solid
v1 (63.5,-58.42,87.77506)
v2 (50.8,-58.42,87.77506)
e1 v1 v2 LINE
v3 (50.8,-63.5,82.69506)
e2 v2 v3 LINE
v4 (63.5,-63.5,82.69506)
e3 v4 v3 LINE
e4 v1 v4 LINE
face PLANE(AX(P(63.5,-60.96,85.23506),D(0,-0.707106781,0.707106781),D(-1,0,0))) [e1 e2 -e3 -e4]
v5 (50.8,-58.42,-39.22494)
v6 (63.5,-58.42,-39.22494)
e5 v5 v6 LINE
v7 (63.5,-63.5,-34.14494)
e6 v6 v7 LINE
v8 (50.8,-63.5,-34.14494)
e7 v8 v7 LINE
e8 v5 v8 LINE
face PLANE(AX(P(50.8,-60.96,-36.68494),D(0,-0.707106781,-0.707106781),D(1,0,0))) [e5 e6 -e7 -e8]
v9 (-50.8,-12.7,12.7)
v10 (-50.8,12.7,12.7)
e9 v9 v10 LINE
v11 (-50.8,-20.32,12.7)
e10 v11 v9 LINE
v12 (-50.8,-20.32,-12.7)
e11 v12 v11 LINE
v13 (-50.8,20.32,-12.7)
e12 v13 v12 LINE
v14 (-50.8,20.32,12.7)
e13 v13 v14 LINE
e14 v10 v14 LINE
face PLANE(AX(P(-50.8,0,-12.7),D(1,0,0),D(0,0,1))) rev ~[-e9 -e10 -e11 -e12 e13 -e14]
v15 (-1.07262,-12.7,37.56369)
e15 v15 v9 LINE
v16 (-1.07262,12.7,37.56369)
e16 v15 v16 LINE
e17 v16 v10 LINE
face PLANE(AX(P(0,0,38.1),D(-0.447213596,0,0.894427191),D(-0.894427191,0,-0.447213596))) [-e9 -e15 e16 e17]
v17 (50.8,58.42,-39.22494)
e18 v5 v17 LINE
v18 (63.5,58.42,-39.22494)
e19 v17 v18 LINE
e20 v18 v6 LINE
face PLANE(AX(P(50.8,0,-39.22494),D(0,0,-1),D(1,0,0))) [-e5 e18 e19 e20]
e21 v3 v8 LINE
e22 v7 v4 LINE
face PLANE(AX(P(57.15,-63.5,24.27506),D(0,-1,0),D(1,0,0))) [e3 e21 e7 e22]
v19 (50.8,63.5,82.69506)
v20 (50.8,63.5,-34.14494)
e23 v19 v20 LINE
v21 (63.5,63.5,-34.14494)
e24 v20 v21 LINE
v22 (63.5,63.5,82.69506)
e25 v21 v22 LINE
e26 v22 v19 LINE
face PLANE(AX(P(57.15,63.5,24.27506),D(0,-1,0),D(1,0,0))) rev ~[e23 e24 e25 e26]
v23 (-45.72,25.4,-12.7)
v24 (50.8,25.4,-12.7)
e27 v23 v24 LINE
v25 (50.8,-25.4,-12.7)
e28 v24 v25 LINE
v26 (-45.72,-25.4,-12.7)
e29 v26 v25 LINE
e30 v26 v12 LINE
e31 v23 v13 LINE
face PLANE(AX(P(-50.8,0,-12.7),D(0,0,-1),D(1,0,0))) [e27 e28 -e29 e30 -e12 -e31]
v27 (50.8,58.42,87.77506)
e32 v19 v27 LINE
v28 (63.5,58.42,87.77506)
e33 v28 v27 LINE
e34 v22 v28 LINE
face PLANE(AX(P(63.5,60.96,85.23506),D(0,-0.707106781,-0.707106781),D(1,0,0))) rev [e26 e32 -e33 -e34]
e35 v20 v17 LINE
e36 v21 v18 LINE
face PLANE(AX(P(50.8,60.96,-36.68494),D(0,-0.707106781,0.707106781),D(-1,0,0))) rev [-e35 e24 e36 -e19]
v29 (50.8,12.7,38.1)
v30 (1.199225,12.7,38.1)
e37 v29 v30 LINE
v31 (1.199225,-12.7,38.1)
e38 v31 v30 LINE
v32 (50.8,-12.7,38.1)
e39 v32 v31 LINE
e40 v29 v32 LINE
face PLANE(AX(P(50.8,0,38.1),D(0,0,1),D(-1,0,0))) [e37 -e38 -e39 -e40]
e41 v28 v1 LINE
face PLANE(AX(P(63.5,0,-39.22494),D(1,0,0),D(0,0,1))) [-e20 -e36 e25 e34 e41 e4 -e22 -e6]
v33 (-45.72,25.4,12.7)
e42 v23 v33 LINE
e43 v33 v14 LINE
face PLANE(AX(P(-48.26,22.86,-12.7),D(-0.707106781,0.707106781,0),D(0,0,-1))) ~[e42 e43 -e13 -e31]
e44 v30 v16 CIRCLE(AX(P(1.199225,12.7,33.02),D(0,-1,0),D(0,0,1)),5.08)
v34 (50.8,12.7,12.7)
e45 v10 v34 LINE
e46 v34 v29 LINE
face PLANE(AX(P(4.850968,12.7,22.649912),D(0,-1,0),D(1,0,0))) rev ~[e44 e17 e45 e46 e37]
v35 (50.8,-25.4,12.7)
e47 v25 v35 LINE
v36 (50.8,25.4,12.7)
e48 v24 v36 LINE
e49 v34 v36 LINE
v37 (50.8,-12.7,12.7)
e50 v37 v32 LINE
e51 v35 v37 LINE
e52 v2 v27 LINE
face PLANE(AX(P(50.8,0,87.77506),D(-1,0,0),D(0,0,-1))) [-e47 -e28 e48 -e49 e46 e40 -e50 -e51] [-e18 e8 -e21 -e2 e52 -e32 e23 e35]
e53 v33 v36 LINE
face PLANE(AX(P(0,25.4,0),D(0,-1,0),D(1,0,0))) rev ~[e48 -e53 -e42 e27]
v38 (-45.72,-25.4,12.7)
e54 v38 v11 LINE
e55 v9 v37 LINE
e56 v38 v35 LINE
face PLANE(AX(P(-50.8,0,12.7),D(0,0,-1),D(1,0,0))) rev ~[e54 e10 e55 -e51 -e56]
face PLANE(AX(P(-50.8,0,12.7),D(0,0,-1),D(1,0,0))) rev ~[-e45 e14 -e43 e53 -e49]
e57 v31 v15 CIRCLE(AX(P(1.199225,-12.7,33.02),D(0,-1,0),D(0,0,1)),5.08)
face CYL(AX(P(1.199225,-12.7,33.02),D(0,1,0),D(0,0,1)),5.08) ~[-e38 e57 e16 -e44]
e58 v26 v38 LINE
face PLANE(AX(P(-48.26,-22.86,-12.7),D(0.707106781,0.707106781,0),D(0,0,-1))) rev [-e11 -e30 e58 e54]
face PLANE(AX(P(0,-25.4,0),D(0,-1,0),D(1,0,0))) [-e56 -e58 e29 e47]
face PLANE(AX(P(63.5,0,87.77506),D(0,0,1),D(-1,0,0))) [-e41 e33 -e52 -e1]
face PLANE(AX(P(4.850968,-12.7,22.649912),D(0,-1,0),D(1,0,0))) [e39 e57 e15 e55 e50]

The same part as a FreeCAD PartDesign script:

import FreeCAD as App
import Part
import Sketcher
from FreeCAD import Vector
Q = App.Units.Quantity


def edges_at(feature, points):
    """Names of the edges that pass closest to the given points."""
    edges = feature.Shape.Edges
    near = lambda p: min(range(len(edges)), key=lambda i: edges[i].distToShape(Part.Vertex(*p))[0])
    return sorted({f"Edge{near(p) + 1}" for p in points})


def add_polygon(sketch, points):
    """Adds a closed chain of lines whose ends are joined by coincident constraints."""
    first, n = sketch.GeometryCount, len(points)
    for a, b in zip(points, points[1:] + points[:1]):
        sketch.addGeometry(Part.LineSegment(App.Vector(*a, 0), App.Vector(*b, 0)), False)
    for i in range(n):
        sketch.addConstraint(Sketcher.Constraint("Coincident", first + i, 2, first + (i + 1) % n, 1))

doc = App.newDocument("Part")
body = doc.addObject("PartDesign::Body", "Body")

# Sketch on XZ plane
sketch1 = body.newObject("Sketcher::SketchObject", "Sketch")
sketch1.AttachmentSupport = (doc.getObject("XZ_Plane"), [""])
sketch1.MapMode = "FlatFace"
add_polygon(sketch1, [(-50.8, 12.7), (-50.8, -12.7), (50.8, -12.7), (50.8, 12.7)])  # lines 0-3
sketch1.addConstraint(Sketcher.Constraint("Vertical", 0))
sketch1.addConstraint(Sketcher.Constraint("Horizontal", 1))
sketch1.addConstraint(Sketcher.Constraint("Vertical", 2))
sketch1.addConstraint(Sketcher.Constraint("Horizontal", 3))
sketch1.addConstraint(Sketcher.Constraint("Symmetric", 0, 2, 2, 2, -1, 1))
sketch1.addConstraint(Sketcher.Constraint("DistanceX", 1, 1, 1, 2, Q("4 in")))
sketch1.addConstraint(Sketcher.Constraint("DistanceY", 0, 2, 0, 1, Q("1 in")))
pad1 = body.newObject("PartDesign::Pad", "Pad")
pad1.Profile = sketch1
pad1.Length = Q("2 in")
pad1.Midplane = True

# Sketch on XZ plane
sketch2 = body.newObject("Sketcher::SketchObject", "Sketch001")
sketch2.AttachmentSupport = (doc.getObject("XZ_Plane"), [""])
sketch2.MapMode = "FlatFace"
add_polygon(sketch2, [(-50.8, 12.7), (50.8, 12.7), (50.8, 38.1), (0, 38.1)])  # lines 0-3
sketch2.addConstraint(Sketcher.Constraint("Horizontal", 0))
sketch2.addConstraint(Sketcher.Constraint("Vertical", 1))
sketch2.addConstraint(Sketcher.Constraint("Horizontal", 2))
sketch2.addConstraint(Sketcher.Constraint("PointOnObject", 2, 2, -2))
sketch2.addConstraint(Sketcher.Constraint("DistanceX", 0, 1, 0, 2, Q("4 in")))
sketch2.addConstraint(Sketcher.Constraint("DistanceX", 2, 2, 2, 1, Q("2 in")))
sketch2.addConstraint(Sketcher.Constraint("DistanceY", 1, 1, 1, 2, Q("1 in")))
sketch2.addConstraint(Sketcher.Constraint("DistanceY", -1, 1, 0, 2, Q("0.5 in")))
pad2 = body.newObject("PartDesign::Pad", "Pad001")
pad2.Profile = sketch2
pad2.Length = Q("1 in")
pad2.Midplane = True

# Sketch on XZ plane
sketch3 = body.newObject("Sketcher::SketchObject", "Sketch002")
sketch3.AttachmentSupport = (doc.getObject("XZ_Plane"), [""])
sketch3.MapMode = "FlatFace"
add_polygon(sketch3, [(50.8, -39.22494), (63.5, -39.22494), (63.5, 87.77506), (50.8, 87.77506)])  # lines 0-3
sketch3.addConstraint(Sketcher.Constraint("Horizontal", 0))
sketch3.addConstraint(Sketcher.Constraint("Vertical", 1))
sketch3.addConstraint(Sketcher.Constraint("Horizontal", 2))
sketch3.addConstraint(Sketcher.Constraint("Vertical", 3))
sketch3.addConstraint(Sketcher.Constraint("DistanceY", 1, 1, 1, 2, Q("5 in")))
sketch3.addConstraint(Sketcher.Constraint("DistanceX", 0, 1, 0, 2, Q("0.5 in")))
sketch3.addConstraint(Sketcher.Constraint("DistanceX", -1, 1, 2, 2, Q("2 in")))
sketch3.addConstraint(Sketcher.Constraint("DistanceY", 0, 2, -1, 1, Q("39.22494 mm")))
pad3 = body.newObject("PartDesign::Pad", "Pad002")
pad3.Profile = sketch3
pad3.Length = Q("5 in")
pad3.Midplane = True
doc.recompute()

fillet = body.newObject("PartDesign::Fillet", "Fillet")
fillet.Base = (pad3, edges_at(pad3, [(0, 0, 38.1)]))
fillet.Radius = Q("0.2 in")
doc.recompute()

chamfer = body.newObject("PartDesign::Chamfer", "Chamfer")
chamfer.Base = (fillet, edges_at(fillet, [
    (57.15, 63.5, 87.775),
    (57.15, -63.5, 87.775),
    (57.15, 63.5, -39.225),
    (57.15, -63.5, -39.225),
    (-50.8, 25.4, 0),
    (-50.8, -25.4, 0),
]))
chamfer.Size = Q("0.2 in")

doc.recompute()
